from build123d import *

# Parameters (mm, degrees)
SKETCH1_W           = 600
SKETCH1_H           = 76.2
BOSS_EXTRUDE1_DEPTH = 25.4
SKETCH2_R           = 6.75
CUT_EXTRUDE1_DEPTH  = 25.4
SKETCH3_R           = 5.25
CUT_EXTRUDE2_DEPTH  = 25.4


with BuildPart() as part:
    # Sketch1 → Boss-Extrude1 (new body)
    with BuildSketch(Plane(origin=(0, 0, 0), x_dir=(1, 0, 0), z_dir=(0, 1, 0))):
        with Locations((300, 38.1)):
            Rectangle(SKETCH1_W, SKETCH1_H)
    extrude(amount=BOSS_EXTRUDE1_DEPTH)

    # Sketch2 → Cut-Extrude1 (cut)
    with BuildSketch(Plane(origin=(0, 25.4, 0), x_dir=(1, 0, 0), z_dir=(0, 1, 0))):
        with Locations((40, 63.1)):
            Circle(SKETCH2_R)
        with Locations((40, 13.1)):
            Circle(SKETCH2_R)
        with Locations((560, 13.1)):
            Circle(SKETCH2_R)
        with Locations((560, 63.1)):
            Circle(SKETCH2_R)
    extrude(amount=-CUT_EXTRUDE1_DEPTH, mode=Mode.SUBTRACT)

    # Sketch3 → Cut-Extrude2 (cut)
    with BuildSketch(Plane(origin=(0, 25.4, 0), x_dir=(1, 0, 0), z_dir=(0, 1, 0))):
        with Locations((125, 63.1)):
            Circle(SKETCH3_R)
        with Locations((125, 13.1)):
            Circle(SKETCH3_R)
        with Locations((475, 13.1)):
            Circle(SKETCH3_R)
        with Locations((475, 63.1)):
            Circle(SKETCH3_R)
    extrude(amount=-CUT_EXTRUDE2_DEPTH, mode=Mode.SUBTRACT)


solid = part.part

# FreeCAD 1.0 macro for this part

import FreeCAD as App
import Part
import Sketcher
from FreeCAD import Vector

doc = App.newDocument("Part")
params = doc.addObject("Spreadsheet::Sheet", "Params")
for row, (alias, value) in enumerate([
    ("sketch1_width", "600 mm"),
    ("sketch1_height", "76.2 mm"),
    ("pad1_length", "25.4 mm"),
    ("sketch2_diameter", "13.5 mm"),
    ("pocket1_length", "25.4 mm"),
    ("sketch3_diameter", "10.5 mm"),
    ("pocket2_length", "25.4 mm"),
], start=1):
    params.set(f"A{row}", alias)
    params.set(f"B{row}", "=" + value)
    params.setAlias(f"B{row}", alias)

body = doc.addObject("PartDesign::Body", "Body")

sketch1 = body.newObject("Sketcher::SketchObject", "Sketch")
sketch1.AttachmentSupport = (doc.getObject("XZ_Plane"), [""])
sketch1.MapMode = "FlatFace"
sketch1.addGeometry([
    Part.LineSegment(Vector(0, -76.2, 0), Vector(0, 0, 0)),
    Part.LineSegment(Vector(0, 0, 0), Vector(600, 0, 0)),
    Part.LineSegment(Vector(600, 0, 0), Vector(600, -76.2, 0)),
    Part.LineSegment(Vector(600, -76.2, 0), Vector(0, -76.2, 0)),
], False)
sketch1.addConstraint([
    Sketcher.Constraint("Coincident", 0, 2, 1, 1),
    Sketcher.Constraint("Coincident", 1, 2, 2, 1),
    Sketcher.Constraint("Coincident", 2, 2, 3, 1),
    Sketcher.Constraint("Coincident", 3, 2, 0, 1),
    Sketcher.Constraint("Vertical", 0),
    Sketcher.Constraint("Horizontal", 1),
    Sketcher.Constraint("Vertical", 2),
    Sketcher.Constraint("Horizontal", 3),
    Sketcher.Constraint("Coincident", 0, 2, -1, 1),
    Sketcher.Constraint("DistanceX", 1, 1, 1, 2, 600.0),
    Sketcher.Constraint("DistanceY", 0, 1, 0, 2, 76.2),
])
sketch1.setExpression("Constraints[9]", "Params.sketch1_width")
sketch1.setExpression("Constraints[10]", "Params.sketch1_height")
pad1 = body.newObject("PartDesign::Pad", "Pad")
pad1.Profile = sketch1
pad1.setExpression("Length", "Params.pad1_length")
pad1.Reversed = True

sketch2 = body.newObject("Sketcher::SketchObject", "Sketch001")
sketch2.AttachmentSupport = (doc.getObject("XZ_Plane"), [""])
sketch2.MapMode = "FlatFace"
sketch2.AttachmentOffset = App.Placement(Vector(0, 0, -25.4), App.Rotation())
sketch2.addGeometry([
    Part.Circle(Vector(40, -63.1, 0), Vector(0, 0, 1), 6.75),
    Part.Circle(Vector(40, -13.1, 0), Vector(0, 0, 1), 6.75),
    Part.Circle(Vector(560, -13.1, 0), Vector(0, 0, 1), 6.75),
    Part.Circle(Vector(560, -63.1, 0), Vector(0, 0, 1), 6.75),
], False)
sketch2.addConstraint([
    Sketcher.Constraint("Equal", 0, 1),
    Sketcher.Constraint("Equal", 1, 2),
    Sketcher.Constraint("Equal", 2, 3),
    Sketcher.Constraint("Horizontal", 1, 3, 2, 3),
    Sketcher.Constraint("Horizontal", 0, 3, 3, 3),
    Sketcher.Constraint("Vertical", 0, 3, 1, 3),
    Sketcher.Constraint("Vertical", 2, 3, 3, 3),
    Sketcher.Constraint("Diameter", 0, 13.5),
    Sketcher.Constraint("DistanceX", -1, 1, 0, 3, 40.0),
    Sketcher.Constraint("DistanceX", -1, 1, 2, 3, 560.0),
    Sketcher.Constraint("DistanceY", 0, 3, 1, 3, 50.0),
    Sketcher.Constraint("DistanceY", 0, 3, -1, 1, 63.1),
])
sketch2.setExpression("Constraints[7]", "Params.sketch2_diameter")
pocket1 = body.newObject("PartDesign::Pocket", "Pocket")
pocket1.Profile = sketch2
pocket1.setExpression("Length", "Params.pocket1_length")
pocket1.Reversed = True

sketch3 = body.newObject("Sketcher::SketchObject", "Sketch002")
sketch3.AttachmentSupport = (doc.getObject("XZ_Plane"), [""])
sketch3.MapMode = "FlatFace"
sketch3.AttachmentOffset = App.Placement(Vector(0, 0, -25.4), App.Rotation())
sketch3.addGeometry([
    Part.Circle(Vector(125, -63.1, 0), Vector(0, 0, 1), 5.25),
    Part.Circle(Vector(125, -13.1, 0), Vector(0, 0, 1), 5.25),
    Part.Circle(Vector(475, -13.1, 0), Vector(0, 0, 1), 5.25),
    Part.Circle(Vector(475, -63.1, 0), Vector(0, 0, 1), 5.25),
], False)
sketch3.addConstraint([
    Sketcher.Constraint("Equal", 0, 1),
    Sketcher.Constraint("Equal", 1, 2),
    Sketcher.Constraint("Equal", 2, 3),
    Sketcher.Constraint("Horizontal", 1, 3, 2, 3),
    Sketcher.Constraint("Horizontal", 0, 3, 3, 3),
    Sketcher.Constraint("Vertical", 0, 3, 1, 3),
    Sketcher.Constraint("Vertical", 2, 3, 3, 3),
    Sketcher.Constraint("Diameter", 0, 10.5),
    Sketcher.Constraint("DistanceX", -1, 1, 0, 3, 125.0),
    Sketcher.Constraint("DistanceX", -1, 1, 2, 3, 475.0),
    Sketcher.Constraint("DistanceY", 0, 3, 1, 3, 50.0),
    Sketcher.Constraint("DistanceY", 0, 3, -1, 1, 63.1),
])
sketch3.setExpression("Constraints[7]", "Params.sketch3_diameter")
pocket2 = body.newObject("PartDesign::Pocket", "Pocket001")
pocket2.Profile = sketch3
pocket2.setExpression("Length", "Params.pocket2_length")
pocket2.Reversed = True

doc.recompute()
